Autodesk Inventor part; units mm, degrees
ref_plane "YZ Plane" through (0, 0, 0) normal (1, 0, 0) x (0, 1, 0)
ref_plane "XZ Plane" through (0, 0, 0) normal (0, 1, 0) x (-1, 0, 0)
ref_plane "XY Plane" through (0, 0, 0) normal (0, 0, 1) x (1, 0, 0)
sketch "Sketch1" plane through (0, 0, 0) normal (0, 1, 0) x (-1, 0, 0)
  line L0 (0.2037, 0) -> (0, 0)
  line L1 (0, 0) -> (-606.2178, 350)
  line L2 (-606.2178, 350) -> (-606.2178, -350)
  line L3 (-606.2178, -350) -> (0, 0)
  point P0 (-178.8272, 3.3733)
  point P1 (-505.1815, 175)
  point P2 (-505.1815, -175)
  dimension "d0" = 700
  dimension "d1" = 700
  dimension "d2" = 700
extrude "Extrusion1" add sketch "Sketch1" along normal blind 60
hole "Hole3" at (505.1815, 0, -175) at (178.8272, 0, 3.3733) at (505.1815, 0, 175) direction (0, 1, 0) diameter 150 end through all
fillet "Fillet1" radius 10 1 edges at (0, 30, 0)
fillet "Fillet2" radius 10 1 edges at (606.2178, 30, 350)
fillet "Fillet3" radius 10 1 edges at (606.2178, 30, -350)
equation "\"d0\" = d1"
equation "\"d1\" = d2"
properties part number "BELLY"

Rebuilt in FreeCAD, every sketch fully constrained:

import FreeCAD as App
import Part
import Sketcher

V = App.Vector
Q = App.Units.Quantity


def edges_at(feature, points):
    """Names of the edges that pass closest to the given points."""
    edges = feature.Shape.Edges
    near = lambda p: min(range(len(edges)), key=lambda i: edges[i].distToShape(Part.Vertex(*p))[0])
    return sorted({f"Edge{near(p) + 1}" for p in points})

doc = App.newDocument("Part")
body = doc.addObject("PartDesign::Body", "Body")

sketch1 = doc.addObject("Sketcher::SketchObject", "Sketch")
body.addObject(sketch1)
sketch1.AttachmentSupport = (doc.XZ_Plane, [""])
sketch1.MapMode = "FlatFace"
sketch1.addGeometry([
    Part.LineSegment(V(606, -350, 0), V(0, 0, 0)),
    Part.LineSegment(V(0, 0, 0), V(606, 350, 0)),
    Part.LineSegment(V(606, 350, 0), V(606, -350, 0)),
], False)
sketch1.addConstraint([
    Sketcher.Constraint("Coincident", 0, 2, 1, 1),
    Sketcher.Constraint("Coincident", 1, 2, 2, 1),
    Sketcher.Constraint("Coincident", 2, 2, 0, 1),
    Sketcher.Constraint("Vertical", 2),
    Sketcher.Constraint("Coincident", 0, 2, -1, 1),
    Sketcher.Constraint("Equal", 0, 1),
    Sketcher.Constraint("DistanceY", 2, 2, 2, 1, Q("700 mm")),
    Sketcher.Constraint("Distance", 0, Q("700 mm")),
])
pad1 = doc.addObject("PartDesign::Pad", "Pad")
body.addObject(pad1)
pad1.Profile = sketch1
pad1.Length = 60
pad1.Reversed = True

sketch2 = doc.addObject("Sketcher::SketchObject", "Sketch001")
body.addObject(sketch2)
sketch2.AttachmentSupport = (doc.XZ_Plane, [""])
sketch2.MapMode = "FlatFace"
sketch2.addGeometry([
    Part.Circle(V(505, -175, 0), V(0, 0, 1), 75),
    Part.Circle(V(179, 3, 0), V(0, 0, 1), 75),
    Part.Circle(V(505, 175, 0), V(0, 0, 1), 75),
], False)
sketch2.addConstraint([
    Sketcher.Constraint("Equal", 0, 1),
    Sketcher.Constraint("Equal", 1, 2),
    Sketcher.Constraint("Symmetric", 0, 3, 2, 3, -1),
    Sketcher.Constraint("Diameter", 0, Q("150 mm")),
    Sketcher.Constraint("DistanceY", 0, 3, -1, 1, Q("175 mm")),
    Sketcher.Constraint("DistanceX", -1, 1, 0, 3, Q("505.1815 mm")),
    Sketcher.Constraint("DistanceX", -1, 1, 1, 3, Q("178.8272 mm")),
    Sketcher.Constraint("DistanceY", -1, 1, 1, 3, Q("3.3733 mm")),
])
doc.recompute()
hole = doc.addObject("PartDesign::Hole", "Hole")
body.addObject(hole)
hole.Profile = sketch2
hole.ThreadType = "None"
hole.Diameter = 150
hole.DepthType = "ThroughAll"
doc.recompute()

fillet = doc.addObject("PartDesign::Fillet", "Fillet")
body.addObject(fillet)
fillet.Base = (hole, edges_at(hole, [(0, 30, 0)]))
fillet.Radius = 10
doc.recompute()

fillet2 = doc.addObject("PartDesign::Fillet", "Fillet001")
body.addObject(fillet2)
fillet2.Base = (fillet, edges_at(fillet, [(606.218, 30, 350)]))
fillet2.Radius = 10
doc.recompute()

fillet3 = doc.addObject("PartDesign::Fillet", "Fillet002")
body.addObject(fillet3)
fillet3.Base = (fillet2, edges_at(fillet2, [(606.218, 30, -350)]))
fillet3.Radius = 10

doc.recompute()
